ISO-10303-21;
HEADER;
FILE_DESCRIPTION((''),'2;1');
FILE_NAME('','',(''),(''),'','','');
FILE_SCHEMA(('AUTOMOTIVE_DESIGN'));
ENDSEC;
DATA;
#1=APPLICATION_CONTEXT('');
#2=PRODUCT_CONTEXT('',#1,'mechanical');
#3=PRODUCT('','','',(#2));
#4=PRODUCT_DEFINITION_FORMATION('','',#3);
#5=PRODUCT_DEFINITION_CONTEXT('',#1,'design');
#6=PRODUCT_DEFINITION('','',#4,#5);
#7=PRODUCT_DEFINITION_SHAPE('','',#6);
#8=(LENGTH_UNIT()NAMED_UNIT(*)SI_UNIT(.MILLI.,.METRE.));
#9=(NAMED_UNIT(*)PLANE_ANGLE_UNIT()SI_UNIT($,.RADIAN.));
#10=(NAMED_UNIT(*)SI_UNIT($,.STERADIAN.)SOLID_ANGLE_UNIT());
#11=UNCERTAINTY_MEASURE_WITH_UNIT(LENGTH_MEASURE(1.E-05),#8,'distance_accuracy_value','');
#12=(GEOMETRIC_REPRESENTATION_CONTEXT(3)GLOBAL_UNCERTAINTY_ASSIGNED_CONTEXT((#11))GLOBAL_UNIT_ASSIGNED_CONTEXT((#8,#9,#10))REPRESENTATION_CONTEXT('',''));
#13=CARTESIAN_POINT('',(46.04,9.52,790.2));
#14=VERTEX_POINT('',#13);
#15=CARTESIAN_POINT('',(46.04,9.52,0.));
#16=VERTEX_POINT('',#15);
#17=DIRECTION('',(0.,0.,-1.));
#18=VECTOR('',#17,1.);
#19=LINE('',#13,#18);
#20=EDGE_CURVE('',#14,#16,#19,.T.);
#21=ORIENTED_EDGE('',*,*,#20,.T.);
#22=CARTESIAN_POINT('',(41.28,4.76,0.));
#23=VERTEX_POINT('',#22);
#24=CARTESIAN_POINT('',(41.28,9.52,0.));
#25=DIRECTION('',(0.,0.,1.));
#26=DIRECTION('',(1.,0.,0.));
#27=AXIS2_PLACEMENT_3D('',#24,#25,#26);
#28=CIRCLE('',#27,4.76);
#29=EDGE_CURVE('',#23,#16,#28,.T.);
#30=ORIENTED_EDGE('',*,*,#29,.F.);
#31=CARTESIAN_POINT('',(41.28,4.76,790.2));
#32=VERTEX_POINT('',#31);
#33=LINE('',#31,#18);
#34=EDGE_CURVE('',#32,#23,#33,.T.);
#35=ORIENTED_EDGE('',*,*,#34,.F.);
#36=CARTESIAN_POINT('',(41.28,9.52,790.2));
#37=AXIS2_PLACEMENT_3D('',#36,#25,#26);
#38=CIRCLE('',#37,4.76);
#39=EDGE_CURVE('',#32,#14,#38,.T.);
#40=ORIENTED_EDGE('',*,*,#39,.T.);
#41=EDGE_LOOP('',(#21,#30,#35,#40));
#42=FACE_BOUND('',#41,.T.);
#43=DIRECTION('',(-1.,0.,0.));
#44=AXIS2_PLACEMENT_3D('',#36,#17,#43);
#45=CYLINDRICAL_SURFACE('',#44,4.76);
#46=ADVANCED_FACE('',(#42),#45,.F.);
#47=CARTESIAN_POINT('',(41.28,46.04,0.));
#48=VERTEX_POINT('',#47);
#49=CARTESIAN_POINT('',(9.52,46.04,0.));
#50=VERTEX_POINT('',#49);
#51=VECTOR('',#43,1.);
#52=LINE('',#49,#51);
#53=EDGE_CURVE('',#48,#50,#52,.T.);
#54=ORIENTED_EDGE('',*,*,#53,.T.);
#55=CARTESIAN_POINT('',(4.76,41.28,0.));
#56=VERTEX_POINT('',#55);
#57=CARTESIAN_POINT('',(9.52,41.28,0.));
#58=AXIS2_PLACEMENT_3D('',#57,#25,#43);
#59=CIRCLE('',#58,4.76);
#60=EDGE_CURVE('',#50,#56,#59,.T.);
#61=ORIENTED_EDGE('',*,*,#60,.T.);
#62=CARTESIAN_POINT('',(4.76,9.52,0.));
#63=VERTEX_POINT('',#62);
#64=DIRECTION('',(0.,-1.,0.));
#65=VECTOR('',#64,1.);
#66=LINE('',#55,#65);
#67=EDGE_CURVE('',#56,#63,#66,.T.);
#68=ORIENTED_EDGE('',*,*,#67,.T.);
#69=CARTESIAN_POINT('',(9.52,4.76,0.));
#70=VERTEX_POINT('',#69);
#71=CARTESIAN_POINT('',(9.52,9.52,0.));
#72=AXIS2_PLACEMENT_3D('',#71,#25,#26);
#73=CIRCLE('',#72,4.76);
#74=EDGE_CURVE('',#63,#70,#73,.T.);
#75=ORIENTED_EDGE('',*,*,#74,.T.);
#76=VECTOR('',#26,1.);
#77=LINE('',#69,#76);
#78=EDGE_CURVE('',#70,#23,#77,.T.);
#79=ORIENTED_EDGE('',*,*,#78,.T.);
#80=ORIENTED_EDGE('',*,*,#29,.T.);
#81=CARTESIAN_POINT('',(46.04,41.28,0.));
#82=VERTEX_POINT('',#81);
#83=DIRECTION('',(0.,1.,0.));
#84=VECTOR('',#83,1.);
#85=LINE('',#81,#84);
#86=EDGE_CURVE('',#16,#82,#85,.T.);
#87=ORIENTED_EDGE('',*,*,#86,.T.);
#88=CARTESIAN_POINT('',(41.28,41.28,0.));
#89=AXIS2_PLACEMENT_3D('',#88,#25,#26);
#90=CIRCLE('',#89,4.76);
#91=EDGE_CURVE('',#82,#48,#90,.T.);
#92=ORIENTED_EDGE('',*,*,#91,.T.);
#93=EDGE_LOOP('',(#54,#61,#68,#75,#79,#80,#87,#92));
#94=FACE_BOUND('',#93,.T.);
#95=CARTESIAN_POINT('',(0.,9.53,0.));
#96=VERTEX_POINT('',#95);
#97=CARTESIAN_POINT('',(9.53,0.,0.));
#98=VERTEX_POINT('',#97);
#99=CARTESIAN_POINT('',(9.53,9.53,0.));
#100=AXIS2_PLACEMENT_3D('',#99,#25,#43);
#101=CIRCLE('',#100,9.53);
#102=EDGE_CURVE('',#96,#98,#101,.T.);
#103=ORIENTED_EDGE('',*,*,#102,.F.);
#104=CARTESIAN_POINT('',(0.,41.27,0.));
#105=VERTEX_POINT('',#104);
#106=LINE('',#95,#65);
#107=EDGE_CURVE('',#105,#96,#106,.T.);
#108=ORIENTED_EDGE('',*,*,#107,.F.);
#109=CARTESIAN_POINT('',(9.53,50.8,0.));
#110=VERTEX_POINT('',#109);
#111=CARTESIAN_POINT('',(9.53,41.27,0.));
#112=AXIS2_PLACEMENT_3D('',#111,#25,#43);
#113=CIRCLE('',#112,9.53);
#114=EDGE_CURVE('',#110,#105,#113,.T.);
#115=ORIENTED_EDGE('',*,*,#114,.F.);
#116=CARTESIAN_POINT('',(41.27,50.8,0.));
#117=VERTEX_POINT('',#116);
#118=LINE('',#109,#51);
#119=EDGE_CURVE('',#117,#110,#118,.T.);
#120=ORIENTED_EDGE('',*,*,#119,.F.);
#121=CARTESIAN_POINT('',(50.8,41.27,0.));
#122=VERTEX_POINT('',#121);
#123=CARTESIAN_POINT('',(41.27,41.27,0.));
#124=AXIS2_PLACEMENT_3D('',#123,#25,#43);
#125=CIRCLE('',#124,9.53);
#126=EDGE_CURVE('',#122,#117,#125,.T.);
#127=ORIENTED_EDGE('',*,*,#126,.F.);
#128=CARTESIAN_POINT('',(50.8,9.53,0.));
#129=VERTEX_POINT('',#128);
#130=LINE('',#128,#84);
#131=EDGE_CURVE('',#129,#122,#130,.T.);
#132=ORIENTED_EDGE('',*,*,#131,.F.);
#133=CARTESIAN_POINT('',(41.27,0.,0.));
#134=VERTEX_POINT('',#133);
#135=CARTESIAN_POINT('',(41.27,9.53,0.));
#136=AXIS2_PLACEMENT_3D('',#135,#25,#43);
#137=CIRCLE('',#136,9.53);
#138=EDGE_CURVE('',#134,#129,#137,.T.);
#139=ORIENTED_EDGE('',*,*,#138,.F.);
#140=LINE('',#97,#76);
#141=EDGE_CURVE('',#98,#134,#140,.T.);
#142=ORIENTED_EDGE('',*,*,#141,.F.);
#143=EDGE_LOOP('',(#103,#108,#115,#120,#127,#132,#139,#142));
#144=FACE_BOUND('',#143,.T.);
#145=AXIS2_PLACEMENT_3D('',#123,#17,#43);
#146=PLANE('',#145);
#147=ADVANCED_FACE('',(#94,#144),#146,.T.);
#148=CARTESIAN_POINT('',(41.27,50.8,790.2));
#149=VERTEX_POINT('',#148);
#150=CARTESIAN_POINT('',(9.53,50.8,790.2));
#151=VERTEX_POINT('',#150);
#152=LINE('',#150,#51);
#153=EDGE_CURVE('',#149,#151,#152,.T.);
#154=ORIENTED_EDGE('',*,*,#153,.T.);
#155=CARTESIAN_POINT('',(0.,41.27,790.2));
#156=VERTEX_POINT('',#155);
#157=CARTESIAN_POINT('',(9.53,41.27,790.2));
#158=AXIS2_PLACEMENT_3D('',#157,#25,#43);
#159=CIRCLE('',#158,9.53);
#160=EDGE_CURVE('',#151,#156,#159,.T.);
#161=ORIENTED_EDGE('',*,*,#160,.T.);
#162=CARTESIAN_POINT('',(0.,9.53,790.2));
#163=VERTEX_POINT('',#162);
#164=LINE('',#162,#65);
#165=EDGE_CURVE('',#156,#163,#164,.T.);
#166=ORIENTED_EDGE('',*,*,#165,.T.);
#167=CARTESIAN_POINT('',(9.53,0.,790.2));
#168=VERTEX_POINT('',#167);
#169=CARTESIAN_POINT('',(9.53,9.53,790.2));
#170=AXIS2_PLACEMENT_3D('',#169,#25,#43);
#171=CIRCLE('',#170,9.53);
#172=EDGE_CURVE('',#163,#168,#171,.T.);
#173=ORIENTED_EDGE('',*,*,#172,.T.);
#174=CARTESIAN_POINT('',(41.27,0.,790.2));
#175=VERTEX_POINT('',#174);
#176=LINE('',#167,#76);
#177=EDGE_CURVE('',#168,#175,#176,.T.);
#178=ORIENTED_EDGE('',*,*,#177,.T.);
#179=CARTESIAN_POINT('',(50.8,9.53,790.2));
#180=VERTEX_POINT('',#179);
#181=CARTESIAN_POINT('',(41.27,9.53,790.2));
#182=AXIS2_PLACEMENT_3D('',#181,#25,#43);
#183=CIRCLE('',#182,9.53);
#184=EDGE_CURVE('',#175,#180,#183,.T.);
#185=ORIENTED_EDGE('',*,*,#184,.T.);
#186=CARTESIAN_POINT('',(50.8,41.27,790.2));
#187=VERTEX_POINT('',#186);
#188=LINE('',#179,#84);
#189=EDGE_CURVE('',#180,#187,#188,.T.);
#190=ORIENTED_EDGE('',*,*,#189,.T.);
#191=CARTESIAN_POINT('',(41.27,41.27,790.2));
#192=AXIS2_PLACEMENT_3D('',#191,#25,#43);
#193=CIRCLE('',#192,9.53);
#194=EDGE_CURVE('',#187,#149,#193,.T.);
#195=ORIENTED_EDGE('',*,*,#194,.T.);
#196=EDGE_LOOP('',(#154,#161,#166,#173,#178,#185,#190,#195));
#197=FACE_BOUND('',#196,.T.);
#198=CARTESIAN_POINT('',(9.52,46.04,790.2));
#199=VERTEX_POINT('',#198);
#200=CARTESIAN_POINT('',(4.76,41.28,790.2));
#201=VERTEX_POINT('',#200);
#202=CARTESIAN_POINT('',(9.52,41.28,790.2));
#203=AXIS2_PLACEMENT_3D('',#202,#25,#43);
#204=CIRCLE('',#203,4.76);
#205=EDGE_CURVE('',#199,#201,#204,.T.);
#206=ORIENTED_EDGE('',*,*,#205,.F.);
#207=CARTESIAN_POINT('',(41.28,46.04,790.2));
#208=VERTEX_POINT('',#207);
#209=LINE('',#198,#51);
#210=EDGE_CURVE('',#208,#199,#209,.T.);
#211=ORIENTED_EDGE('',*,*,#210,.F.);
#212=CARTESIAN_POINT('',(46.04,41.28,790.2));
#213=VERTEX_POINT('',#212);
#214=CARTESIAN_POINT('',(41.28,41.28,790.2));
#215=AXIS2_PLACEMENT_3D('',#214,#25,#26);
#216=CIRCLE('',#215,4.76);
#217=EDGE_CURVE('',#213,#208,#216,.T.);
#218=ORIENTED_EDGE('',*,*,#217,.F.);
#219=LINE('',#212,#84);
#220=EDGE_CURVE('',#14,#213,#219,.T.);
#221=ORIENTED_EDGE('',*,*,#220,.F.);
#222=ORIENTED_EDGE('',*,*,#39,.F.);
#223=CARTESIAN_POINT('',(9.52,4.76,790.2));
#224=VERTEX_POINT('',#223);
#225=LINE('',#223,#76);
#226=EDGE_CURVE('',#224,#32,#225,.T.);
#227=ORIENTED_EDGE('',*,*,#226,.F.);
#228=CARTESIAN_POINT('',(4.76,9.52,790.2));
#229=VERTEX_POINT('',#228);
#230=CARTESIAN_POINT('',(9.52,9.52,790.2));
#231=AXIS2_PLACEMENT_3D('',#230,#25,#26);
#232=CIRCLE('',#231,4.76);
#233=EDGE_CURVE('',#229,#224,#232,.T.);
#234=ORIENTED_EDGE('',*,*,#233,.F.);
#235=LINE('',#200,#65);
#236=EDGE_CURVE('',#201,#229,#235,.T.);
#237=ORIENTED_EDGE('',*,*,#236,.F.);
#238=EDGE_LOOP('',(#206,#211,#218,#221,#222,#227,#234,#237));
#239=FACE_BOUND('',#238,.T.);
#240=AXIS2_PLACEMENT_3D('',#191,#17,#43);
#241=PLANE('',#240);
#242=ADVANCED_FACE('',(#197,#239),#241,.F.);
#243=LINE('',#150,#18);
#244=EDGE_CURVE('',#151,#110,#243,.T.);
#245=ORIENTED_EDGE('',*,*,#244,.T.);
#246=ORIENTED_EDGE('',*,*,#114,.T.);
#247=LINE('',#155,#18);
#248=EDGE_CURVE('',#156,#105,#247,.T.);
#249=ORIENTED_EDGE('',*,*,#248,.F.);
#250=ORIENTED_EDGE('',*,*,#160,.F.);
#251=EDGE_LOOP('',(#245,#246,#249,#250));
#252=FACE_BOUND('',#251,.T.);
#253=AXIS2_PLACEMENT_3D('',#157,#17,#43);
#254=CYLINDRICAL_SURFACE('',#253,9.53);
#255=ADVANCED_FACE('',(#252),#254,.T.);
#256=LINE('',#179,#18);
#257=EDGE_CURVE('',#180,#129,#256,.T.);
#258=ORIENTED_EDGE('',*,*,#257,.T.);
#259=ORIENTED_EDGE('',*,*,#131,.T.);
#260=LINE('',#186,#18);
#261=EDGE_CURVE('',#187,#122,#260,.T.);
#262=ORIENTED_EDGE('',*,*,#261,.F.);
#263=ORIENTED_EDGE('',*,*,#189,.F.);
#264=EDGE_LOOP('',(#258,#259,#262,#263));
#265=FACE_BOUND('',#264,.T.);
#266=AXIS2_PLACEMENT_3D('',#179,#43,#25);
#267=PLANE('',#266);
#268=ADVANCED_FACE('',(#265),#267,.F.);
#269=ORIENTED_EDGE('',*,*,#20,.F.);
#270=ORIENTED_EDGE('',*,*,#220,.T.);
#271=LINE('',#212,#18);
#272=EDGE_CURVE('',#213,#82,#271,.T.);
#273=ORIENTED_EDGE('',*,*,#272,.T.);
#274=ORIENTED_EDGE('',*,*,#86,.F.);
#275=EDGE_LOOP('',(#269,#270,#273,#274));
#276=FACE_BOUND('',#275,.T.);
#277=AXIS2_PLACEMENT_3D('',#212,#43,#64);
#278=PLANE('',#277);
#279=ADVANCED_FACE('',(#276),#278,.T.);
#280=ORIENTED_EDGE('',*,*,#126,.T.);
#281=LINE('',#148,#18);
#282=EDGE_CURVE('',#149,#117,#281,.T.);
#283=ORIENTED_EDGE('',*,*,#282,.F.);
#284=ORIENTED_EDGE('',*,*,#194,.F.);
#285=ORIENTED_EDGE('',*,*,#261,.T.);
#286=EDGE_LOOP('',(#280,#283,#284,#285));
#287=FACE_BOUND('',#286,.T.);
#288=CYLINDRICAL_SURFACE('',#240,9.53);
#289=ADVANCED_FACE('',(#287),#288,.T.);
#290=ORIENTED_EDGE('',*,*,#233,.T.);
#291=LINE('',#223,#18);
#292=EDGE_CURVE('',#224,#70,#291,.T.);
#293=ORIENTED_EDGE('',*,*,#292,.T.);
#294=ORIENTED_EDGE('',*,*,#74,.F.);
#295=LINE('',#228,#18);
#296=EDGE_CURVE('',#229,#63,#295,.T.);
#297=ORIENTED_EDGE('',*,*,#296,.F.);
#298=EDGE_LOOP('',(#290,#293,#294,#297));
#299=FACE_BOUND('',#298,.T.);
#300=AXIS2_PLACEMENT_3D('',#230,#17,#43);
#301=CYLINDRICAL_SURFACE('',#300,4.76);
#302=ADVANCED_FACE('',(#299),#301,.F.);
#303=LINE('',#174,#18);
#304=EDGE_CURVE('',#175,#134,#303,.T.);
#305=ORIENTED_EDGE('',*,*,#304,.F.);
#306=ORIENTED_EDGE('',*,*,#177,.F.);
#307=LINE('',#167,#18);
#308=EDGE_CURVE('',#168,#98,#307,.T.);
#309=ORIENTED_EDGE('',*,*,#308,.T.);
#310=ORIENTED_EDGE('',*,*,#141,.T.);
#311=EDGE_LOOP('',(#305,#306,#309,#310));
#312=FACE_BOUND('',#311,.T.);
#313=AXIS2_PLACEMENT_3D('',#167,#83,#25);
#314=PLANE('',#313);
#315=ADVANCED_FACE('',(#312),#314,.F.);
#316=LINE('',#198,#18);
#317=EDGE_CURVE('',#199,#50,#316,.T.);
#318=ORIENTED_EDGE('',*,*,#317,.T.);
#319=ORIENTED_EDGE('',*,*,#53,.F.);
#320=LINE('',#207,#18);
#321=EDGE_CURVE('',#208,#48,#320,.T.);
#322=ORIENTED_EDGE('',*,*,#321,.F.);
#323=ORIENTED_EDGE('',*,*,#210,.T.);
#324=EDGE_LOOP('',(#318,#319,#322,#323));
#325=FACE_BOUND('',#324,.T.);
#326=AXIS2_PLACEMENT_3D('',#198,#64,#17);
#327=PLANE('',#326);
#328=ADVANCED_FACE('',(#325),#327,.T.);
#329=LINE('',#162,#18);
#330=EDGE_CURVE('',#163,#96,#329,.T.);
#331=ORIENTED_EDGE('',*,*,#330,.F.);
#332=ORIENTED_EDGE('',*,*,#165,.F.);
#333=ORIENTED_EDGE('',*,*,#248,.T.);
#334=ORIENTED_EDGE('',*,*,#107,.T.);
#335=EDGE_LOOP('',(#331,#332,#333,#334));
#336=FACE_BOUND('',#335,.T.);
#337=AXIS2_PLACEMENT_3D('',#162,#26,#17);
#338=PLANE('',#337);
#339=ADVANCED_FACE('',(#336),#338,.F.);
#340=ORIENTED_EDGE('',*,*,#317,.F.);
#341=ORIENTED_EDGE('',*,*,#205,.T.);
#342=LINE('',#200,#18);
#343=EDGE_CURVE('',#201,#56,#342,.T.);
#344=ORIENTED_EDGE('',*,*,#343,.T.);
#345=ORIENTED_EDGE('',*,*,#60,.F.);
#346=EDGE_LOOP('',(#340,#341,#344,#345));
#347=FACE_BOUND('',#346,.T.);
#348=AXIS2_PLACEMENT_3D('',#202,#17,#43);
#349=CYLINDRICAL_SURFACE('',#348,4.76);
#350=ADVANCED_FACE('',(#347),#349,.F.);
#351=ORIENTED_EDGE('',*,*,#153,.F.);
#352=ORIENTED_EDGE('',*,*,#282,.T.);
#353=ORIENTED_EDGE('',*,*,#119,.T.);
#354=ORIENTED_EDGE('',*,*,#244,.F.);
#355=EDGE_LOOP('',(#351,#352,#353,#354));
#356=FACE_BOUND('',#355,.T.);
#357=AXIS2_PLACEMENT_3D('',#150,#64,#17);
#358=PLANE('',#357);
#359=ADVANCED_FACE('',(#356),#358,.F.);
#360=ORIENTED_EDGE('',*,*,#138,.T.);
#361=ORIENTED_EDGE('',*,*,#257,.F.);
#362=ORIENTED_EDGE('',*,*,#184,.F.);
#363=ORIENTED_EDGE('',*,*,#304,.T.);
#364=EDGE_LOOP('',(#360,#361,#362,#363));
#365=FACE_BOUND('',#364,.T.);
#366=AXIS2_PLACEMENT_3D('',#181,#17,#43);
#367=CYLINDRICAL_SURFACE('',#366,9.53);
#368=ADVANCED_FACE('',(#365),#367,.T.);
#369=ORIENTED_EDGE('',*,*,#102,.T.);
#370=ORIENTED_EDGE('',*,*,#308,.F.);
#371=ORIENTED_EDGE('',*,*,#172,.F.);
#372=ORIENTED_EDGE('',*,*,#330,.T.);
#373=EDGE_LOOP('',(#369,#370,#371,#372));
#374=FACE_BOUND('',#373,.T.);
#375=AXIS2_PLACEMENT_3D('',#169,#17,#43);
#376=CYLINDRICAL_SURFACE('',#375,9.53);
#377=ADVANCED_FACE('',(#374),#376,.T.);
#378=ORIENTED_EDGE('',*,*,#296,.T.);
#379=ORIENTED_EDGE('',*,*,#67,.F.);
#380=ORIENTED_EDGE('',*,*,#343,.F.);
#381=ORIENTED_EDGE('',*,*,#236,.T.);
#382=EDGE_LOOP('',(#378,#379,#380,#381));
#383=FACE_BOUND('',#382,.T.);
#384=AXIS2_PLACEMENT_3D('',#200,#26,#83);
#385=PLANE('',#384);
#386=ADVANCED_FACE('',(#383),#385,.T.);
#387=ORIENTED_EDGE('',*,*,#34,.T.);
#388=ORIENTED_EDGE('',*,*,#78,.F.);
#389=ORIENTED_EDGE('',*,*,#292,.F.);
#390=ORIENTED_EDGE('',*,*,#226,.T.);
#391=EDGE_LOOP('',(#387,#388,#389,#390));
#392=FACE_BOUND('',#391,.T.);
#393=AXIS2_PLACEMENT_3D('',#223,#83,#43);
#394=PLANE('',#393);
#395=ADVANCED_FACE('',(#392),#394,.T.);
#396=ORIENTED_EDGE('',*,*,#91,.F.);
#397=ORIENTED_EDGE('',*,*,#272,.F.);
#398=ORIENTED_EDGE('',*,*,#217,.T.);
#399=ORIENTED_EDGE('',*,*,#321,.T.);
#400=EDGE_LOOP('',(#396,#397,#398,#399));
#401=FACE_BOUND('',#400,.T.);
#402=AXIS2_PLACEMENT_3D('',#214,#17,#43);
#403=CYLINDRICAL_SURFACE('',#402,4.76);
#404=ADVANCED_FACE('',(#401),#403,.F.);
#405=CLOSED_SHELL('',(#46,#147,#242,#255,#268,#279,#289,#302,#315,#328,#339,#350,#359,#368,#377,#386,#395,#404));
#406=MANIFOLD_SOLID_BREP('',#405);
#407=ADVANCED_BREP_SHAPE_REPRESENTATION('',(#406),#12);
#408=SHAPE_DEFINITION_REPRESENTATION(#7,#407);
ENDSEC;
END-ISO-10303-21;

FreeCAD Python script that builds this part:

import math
import FreeCAD as App
import Part
import Sketcher
from FreeCAD import Vector
Q = App.Units.Quantity

doc = App.newDocument("Part")
body = doc.addObject("PartDesign::Body", "Body")

sketch1 = body.newObject("Sketcher::SketchObject", "Sketch")
sketch1.AttachmentSupport = (doc.getObject("XY_Plane"), [""])
sketch1.MapMode = "FlatFace"
sketch1.addGeometry(Part.LineSegment(Vector(9.53, 0, 0), Vector(41.27, 0, 0)), False)
sketch1.addGeometry(Part.ArcOfCircle(Part.Circle(Vector(41.27, 9.53, 0), Vector(0, 0, 1), 9.53), math.radians(-90), math.radians(0)), False)
sketch1.addGeometry(Part.LineSegment(Vector(50.8, 9.53, 0), Vector(50.8, 41.27, 0)), False)
sketch1.addGeometry(Part.ArcOfCircle(Part.Circle(Vector(41.27, 41.27, 0), Vector(0, 0, 1), 9.53), math.radians(0), math.radians(90)), False)
sketch1.addGeometry(Part.LineSegment(Vector(41.27, 50.8, 0), Vector(9.53, 50.8, 0)), False)
sketch1.addGeometry(Part.ArcOfCircle(Part.Circle(Vector(9.53, 41.27, 0), Vector(0, 0, 1), 9.53), math.radians(90), math.radians(180)), False)
sketch1.addGeometry(Part.LineSegment(Vector(0, 41.27, 0), Vector(0, 9.53, 0)), False)
sketch1.addGeometry(Part.ArcOfCircle(Part.Circle(Vector(9.53, 9.53, 0), Vector(0, 0, 1), 9.53), math.radians(180), math.radians(270)), False)
sketch1.addGeometry(Part.ArcOfCircle(Part.Circle(Vector(9.52, 41.28, 0), Vector(0, 0, 1), 4.76), math.radians(90), math.radians(180)), False)
sketch1.addGeometry(Part.LineSegment(Vector(9.52, 46.04, 0), Vector(41.28, 46.04, 0)), False)
sketch1.addGeometry(Part.ArcOfCircle(Part.Circle(Vector(41.28, 41.28, 0), Vector(0, 0, 1), 4.76), math.radians(0), math.radians(90)), False)
sketch1.addGeometry(Part.LineSegment(Vector(46.04, 41.28, 0), Vector(46.04, 9.52, 0)), False)
sketch1.addGeometry(Part.ArcOfCircle(Part.Circle(Vector(41.28, 9.52, 0), Vector(0, 0, 1), 4.76), math.radians(-90), math.radians(0)), False)
sketch1.addGeometry(Part.LineSegment(Vector(41.28, 4.76, 0), Vector(9.52, 4.76, 0)), False)
sketch1.addGeometry(Part.ArcOfCircle(Part.Circle(Vector(9.52, 9.52, 0), Vector(0, 0, 1), 4.76), math.radians(-180), math.radians(-90)), False)
sketch1.addGeometry(Part.LineSegment(Vector(4.76, 9.52, 0), Vector(4.76, 41.28, 0)), False)
sketch1.addConstraint(Sketcher.Constraint("Tangent", 0, 2, 1, 1))
sketch1.addConstraint(Sketcher.Constraint("Tangent", 1, 2, 2, 1))
sketch1.addConstraint(Sketcher.Constraint("Tangent", 2, 2, 3, 1))
sketch1.addConstraint(Sketcher.Constraint("Tangent", 3, 2, 4, 1))
sketch1.addConstraint(Sketcher.Constraint("Tangent", 4, 2, 5, 1))
sketch1.addConstraint(Sketcher.Constraint("Tangent", 5, 2, 6, 1))
sketch1.addConstraint(Sketcher.Constraint("Tangent", 6, 2, 7, 1))
sketch1.addConstraint(Sketcher.Constraint("Tangent", 7, 2, 0, 1))
sketch1.addConstraint(Sketcher.Constraint("Tangent", 8, 1, 9, 1))
sketch1.addConstraint(Sketcher.Constraint("Tangent", 9, 2, 10, 2))
sketch1.addConstraint(Sketcher.Constraint("Tangent", 10, 1, 11, 1))
sketch1.addConstraint(Sketcher.Constraint("Tangent", 11, 2, 12, 2))
sketch1.addConstraint(Sketcher.Constraint("Tangent", 12, 1, 13, 1))
sketch1.addConstraint(Sketcher.Constraint("Tangent", 13, 2, 14, 2))
sketch1.addConstraint(Sketcher.Constraint("Tangent", 14, 1, 15, 1))
sketch1.addConstraint(Sketcher.Constraint("Tangent", 15, 2, 8, 2))
sketch1.addConstraint(Sketcher.Constraint("Horizontal", 0))
sketch1.addConstraint(Sketcher.Constraint("Vertical", 2))
sketch1.addConstraint(Sketcher.Constraint("Horizontal", 4))
sketch1.addConstraint(Sketcher.Constraint("Vertical", 6))
sketch1.addConstraint(Sketcher.Constraint("Horizontal", 9))
sketch1.addConstraint(Sketcher.Constraint("Vertical", 11))
sketch1.addConstraint(Sketcher.Constraint("Horizontal", 13))
sketch1.addConstraint(Sketcher.Constraint("Vertical", 15))
sketch1.addConstraint(Sketcher.Constraint("Equal", 1, 3))
sketch1.addConstraint(Sketcher.Constraint("Equal", 3, 5))
sketch1.addConstraint(Sketcher.Constraint("Equal", 5, 7))
sketch1.addConstraint(Sketcher.Constraint("Equal", 8, 10))
sketch1.addConstraint(Sketcher.Constraint("Equal", 10, 12))
sketch1.addConstraint(Sketcher.Constraint("Equal", 12, 14))
sketch1.addConstraint(Sketcher.Constraint("PointOnObject", 0, 2, -1))
sketch1.addConstraint(Sketcher.Constraint("PointOnObject", 5, 2, -2))
sketch1.addConstraint(Sketcher.Constraint("Equal", 4, 2))
sketch1.addConstraint(Sketcher.Constraint("Equal", 13, 11))
sketch1.addConstraint(Sketcher.Constraint("Radius", 1, Q("9.53 mm")))
sketch1.addConstraint(Sketcher.Constraint("Radius", 8, Q("4.76 mm")))
sketch1.addConstraint(Sketcher.Constraint("DistanceX", 0, 1, 0, 2, Q("31.74 mm")))
sketch1.addConstraint(Sketcher.Constraint("DistanceX", 9, 1, 9, 2, Q("31.76 mm")))
sketch1.addConstraint(Sketcher.Constraint("DistanceX", -1, 1, 8, 3, Q("9.52 mm")))
sketch1.addConstraint(Sketcher.Constraint("DistanceY", -1, 1, 8, 3, Q("41.28 mm")))
pad1 = body.newObject("PartDesign::Pad", "Pad")
pad1.Profile = sketch1
pad1.Length = 790.2

doc.recompute()
